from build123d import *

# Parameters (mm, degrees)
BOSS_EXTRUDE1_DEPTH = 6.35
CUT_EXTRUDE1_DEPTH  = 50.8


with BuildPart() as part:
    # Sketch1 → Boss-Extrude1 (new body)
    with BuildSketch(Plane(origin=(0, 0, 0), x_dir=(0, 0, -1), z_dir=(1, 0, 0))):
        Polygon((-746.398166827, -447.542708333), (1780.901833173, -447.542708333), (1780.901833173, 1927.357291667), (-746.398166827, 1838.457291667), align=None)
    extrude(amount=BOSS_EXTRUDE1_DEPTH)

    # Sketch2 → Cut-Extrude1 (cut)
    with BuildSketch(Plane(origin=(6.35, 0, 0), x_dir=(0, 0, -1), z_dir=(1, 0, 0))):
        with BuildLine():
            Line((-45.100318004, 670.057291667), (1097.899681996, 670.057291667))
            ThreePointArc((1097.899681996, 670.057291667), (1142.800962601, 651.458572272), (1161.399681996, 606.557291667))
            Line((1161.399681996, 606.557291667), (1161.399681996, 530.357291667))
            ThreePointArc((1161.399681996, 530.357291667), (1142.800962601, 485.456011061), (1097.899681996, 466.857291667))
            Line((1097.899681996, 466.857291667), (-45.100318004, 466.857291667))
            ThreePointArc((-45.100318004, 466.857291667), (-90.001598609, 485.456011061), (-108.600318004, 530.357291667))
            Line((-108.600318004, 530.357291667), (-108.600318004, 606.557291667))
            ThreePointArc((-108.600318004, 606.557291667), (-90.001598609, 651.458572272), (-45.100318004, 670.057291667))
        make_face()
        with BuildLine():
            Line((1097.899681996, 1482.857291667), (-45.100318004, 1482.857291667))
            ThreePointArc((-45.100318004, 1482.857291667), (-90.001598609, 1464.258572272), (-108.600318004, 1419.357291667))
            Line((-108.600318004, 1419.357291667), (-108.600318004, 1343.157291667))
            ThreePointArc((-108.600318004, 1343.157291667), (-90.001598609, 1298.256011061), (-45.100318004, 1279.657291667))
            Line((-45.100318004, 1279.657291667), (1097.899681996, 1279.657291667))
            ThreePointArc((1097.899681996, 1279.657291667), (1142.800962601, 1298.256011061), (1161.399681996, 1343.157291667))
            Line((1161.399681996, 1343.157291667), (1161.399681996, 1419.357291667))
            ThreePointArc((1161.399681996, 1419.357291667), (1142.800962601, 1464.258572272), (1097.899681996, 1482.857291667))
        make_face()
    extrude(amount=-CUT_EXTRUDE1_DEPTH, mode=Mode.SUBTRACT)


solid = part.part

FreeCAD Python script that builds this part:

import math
import FreeCAD as App
import Part
import Sketcher
from FreeCAD import Vector
Q = App.Units.Quantity

doc = App.newDocument("Part")
body = doc.addObject("PartDesign::Body", "Body")

# Sketch on YZ plane
sketch1 = body.newObject("Sketcher::SketchObject", "Sketch")
sketch1.AttachmentSupport = (doc.getObject("YZ_Plane"), [""])
sketch1.MapMode = "FlatFace"
sketch1.addGeometry([
    Part.LineSegment(Vector(-448, 746, 0), Vector(-448, -1781, 0)),
    Part.LineSegment(Vector(-448, -1781, 0), Vector(1927, -1781, 0)),
    Part.LineSegment(Vector(1927, -1781, 0), Vector(1838, 746, 0)),
    Part.LineSegment(Vector(1838, 746, 0), Vector(-448, 746, 0)),
], False)
sketch1.addConstraint([
    Sketcher.Constraint("Coincident", 0, 2, 1, 1),
    Sketcher.Constraint("Coincident", 1, 2, 2, 1),
    Sketcher.Constraint("Coincident", 2, 2, 3, 1),
    Sketcher.Constraint("Coincident", 3, 2, 0, 1),
    Sketcher.Constraint("Vertical", 0),
    Sketcher.Constraint("Horizontal", 1),
    Sketcher.Constraint("Horizontal", 3),
    Sketcher.Constraint("DistanceX", 3, 2, 3, 1, Q("90 in")),
    Sketcher.Constraint("DistanceX", 1, 1, 1, 2, Q("93.5 in")),
    Sketcher.Constraint("DistanceY", 0, 2, 0, 1, Q("99.5 in")),
    Sketcher.Constraint("DistanceX", 0, 2, -1, 1, Q("447.542708 mm")),
    Sketcher.Constraint("DistanceY", 0, 2, -1, 1, Q("1780.901833 mm")),
])
pad1 = body.newObject("PartDesign::Pad", "Pad")
pad1.Profile = sketch1
pad1.Length = Q("0.25 in")

# Sketch on YZ plane
sketch2 = body.newObject("Sketcher::SketchObject", "Sketch001")
sketch2.AttachmentSupport = (doc.getObject("YZ_Plane"), [""])
sketch2.MapMode = "FlatFace"
sketch2.AttachmentOffset = App.Placement(Vector(0, 0, 0.25 * 25.4), App.Rotation())
sketch2.addGeometry([
    Part.LineSegment(Vector(670, -1098, 0), Vector(670, 45, 0)),  # 0
    Part.ArcOfCircle(Part.Circle(Vector(607, 45, 0), Vector(0, 0, 1), 64), math.radians(0), math.radians(90)),  # 1
    Part.LineSegment(Vector(607, 109, 0), Vector(530, 109, 0)),  # 2
    Part.ArcOfCircle(Part.Circle(Vector(530, 45, 0), Vector(0, 0, 1), 63), math.radians(90), math.radians(180)),  # 3
    Part.LineSegment(Vector(467, 45, 0), Vector(467, -1098, 0)),  # 4
    Part.ArcOfCircle(Part.Circle(Vector(530, -1098, 0), Vector(0, 0, 1), 63), math.radians(180), math.radians(270)),  # 5
    Part.LineSegment(Vector(530, -1161, 0), Vector(607, -1161, 0)),  # 6
    Part.ArcOfCircle(Part.Circle(Vector(607, -1098, 0), Vector(0, 0, 1), 64), math.radians(-90), math.radians(0)),  # 7
    Part.LineSegment(Vector(1483, -1098, 0), Vector(1483, 45, 0)),  # 8
    Part.ArcOfCircle(Part.Circle(Vector(1419, 45, 0), Vector(0, 0, 1), 64), math.radians(0), math.radians(90)),  # 9
    Part.LineSegment(Vector(1419, 109, 0), Vector(1343, 109, 0)),  # 10
    Part.ArcOfCircle(Part.Circle(Vector(1343, 45, 0), Vector(0, 0, 1), 63), math.radians(90), math.radians(180)),  # 11
    Part.LineSegment(Vector(1280, 45, 0), Vector(1280, -1098, 0)),  # 12
    Part.ArcOfCircle(Part.Circle(Vector(1343, -1098, 0), Vector(0, 0, 1), 63), math.radians(180), math.radians(270)),  # 13
    Part.LineSegment(Vector(1343, -1161, 0), Vector(1419, -1161, 0)),  # 14
    Part.ArcOfCircle(Part.Circle(Vector(1419, -1098, 0), Vector(0, 0, 1), 64), math.radians(-90), math.radians(0)),  # 15
], False)
sketch2.addConstraint([
    Sketcher.Constraint("Tangent", 0, 2, 1, 1),
    Sketcher.Constraint("Tangent", 1, 2, 2, 1),
    Sketcher.Constraint("Tangent", 2, 2, 3, 1),
    Sketcher.Constraint("Tangent", 3, 2, 4, 1),
    Sketcher.Constraint("Tangent", 4, 2, 5, 1),
    Sketcher.Constraint("Tangent", 5, 2, 6, 1),
    Sketcher.Constraint("Tangent", 6, 2, 7, 1),
    Sketcher.Constraint("Tangent", 7, 2, 0, 1),
    Sketcher.Constraint("Tangent", 8, 2, 9, 1),
    Sketcher.Constraint("Tangent", 9, 2, 10, 1),
    Sketcher.Constraint("Tangent", 10, 2, 11, 1),
    Sketcher.Constraint("Tangent", 11, 2, 12, 1),
    Sketcher.Constraint("Tangent", 12, 2, 13, 1),
    Sketcher.Constraint("Tangent", 13, 2, 14, 1),
    Sketcher.Constraint("Tangent", 14, 2, 15, 1),
    Sketcher.Constraint("Tangent", 15, 2, 8, 1),
    Sketcher.Constraint("Vertical", 0),
    Sketcher.Constraint("Horizontal", 2),
    Sketcher.Constraint("Vertical", 4),
    Sketcher.Constraint("Horizontal", 6),
    Sketcher.Constraint("Vertical", 8),
    Sketcher.Constraint("Horizontal", 10),
    Sketcher.Constraint("Vertical", 12),
    Sketcher.Constraint("Horizontal", 14),
    Sketcher.Constraint("Equal", 1, 3),
    Sketcher.Constraint("Equal", 3, 5),
    Sketcher.Constraint("Equal", 5, 7),
    Sketcher.Constraint("Equal", 7, 9),
    Sketcher.Constraint("Equal", 9, 11),
    Sketcher.Constraint("Equal", 11, 13),
    Sketcher.Constraint("Equal", 13, 15),
    Sketcher.Constraint("Horizontal", 3, 3, 9, 3),
    Sketcher.Constraint("Horizontal", 7, 3, 13, 3),
    Sketcher.Constraint("Equal", 6, 10),
    Sketcher.Constraint("Radius", 1, Q("2.5 in")),
    Sketcher.Constraint("DistanceX", 2, 2, 2, 1, Q("3 in")),
    Sketcher.Constraint("DistanceY", 0, 1, 0, 2, Q("45 in")),
    Sketcher.Constraint("DistanceX", 1, 3, 9, 3, Q("32 in")),
    Sketcher.Constraint("DistanceX", -1, 1, 1, 3, Q("606.557292 mm")),
    Sketcher.Constraint("DistanceY", -1, 1, 1, 3, Q("45.100318 mm")),
])
pocket1 = body.newObject("PartDesign::Pocket", "Pocket")
pocket1.Profile = sketch2
pocket1.Length = Q("2 in")

doc.recompute()
